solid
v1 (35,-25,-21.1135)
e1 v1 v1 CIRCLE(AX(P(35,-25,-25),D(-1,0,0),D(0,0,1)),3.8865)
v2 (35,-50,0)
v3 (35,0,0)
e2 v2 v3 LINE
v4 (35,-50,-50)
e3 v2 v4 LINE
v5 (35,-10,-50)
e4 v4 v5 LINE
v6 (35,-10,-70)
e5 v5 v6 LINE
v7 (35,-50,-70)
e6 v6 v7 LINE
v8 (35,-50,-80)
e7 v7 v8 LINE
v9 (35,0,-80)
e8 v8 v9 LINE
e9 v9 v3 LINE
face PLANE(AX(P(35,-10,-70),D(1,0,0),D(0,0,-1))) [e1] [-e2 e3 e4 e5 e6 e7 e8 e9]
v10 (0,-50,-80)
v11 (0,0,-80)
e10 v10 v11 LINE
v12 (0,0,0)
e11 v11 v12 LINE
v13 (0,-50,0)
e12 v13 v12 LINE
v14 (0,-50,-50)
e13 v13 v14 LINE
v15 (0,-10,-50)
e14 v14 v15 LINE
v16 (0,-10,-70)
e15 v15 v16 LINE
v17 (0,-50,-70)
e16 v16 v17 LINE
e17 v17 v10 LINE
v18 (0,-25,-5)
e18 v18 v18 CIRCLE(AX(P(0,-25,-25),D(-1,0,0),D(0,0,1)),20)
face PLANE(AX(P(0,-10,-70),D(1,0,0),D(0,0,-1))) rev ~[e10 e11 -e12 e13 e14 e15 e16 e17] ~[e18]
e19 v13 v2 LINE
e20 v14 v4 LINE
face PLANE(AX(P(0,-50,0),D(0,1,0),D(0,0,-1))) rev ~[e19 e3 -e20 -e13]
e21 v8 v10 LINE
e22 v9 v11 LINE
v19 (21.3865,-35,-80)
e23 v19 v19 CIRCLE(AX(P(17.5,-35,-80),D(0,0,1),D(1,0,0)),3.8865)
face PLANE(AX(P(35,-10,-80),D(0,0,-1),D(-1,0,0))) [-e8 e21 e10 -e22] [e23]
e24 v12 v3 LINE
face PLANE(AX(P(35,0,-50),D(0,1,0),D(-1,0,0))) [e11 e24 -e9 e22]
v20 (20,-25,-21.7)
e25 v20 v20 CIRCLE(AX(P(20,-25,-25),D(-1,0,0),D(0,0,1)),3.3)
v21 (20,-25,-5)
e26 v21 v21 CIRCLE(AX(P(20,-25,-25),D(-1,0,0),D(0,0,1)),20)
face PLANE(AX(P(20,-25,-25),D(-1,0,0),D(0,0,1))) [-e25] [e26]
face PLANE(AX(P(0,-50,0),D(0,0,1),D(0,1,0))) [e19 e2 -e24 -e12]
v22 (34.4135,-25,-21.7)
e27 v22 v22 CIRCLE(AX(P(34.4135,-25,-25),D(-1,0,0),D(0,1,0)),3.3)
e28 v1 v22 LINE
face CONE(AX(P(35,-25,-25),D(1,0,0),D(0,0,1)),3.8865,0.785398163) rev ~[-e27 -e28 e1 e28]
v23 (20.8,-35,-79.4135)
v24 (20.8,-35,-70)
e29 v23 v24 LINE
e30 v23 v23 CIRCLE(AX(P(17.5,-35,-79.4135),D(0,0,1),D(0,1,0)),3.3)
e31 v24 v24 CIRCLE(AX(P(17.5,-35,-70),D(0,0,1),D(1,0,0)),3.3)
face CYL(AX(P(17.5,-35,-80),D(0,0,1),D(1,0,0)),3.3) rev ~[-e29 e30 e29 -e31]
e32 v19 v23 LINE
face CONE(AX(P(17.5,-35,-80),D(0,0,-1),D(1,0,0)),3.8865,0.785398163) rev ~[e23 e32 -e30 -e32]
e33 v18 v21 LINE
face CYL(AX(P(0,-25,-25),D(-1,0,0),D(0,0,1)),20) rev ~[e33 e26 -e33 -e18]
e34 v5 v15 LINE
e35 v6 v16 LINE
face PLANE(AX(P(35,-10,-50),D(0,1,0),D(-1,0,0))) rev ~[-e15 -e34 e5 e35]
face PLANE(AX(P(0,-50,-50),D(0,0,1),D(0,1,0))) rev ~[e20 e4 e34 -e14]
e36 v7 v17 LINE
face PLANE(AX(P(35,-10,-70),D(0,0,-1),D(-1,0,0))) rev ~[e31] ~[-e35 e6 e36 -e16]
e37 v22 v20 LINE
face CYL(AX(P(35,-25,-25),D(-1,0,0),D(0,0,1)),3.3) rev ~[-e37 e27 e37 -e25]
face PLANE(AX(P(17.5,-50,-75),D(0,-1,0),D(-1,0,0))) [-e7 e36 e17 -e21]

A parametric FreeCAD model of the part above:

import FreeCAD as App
import Part
import Sketcher
Q = App.Units.Quantity


def add_polygon(sketch, points):
    """Adds a closed chain of lines whose ends are joined by coincident constraints."""
    first, n = sketch.GeometryCount, len(points)
    for a, b in zip(points, points[1:] + points[:1]):
        sketch.addGeometry(Part.LineSegment(App.Vector(*a, 0), App.Vector(*b, 0)), False)
    for i in range(n):
        sketch.addConstraint(Sketcher.Constraint("Coincident", first + i, 2, first + (i + 1) % n, 1))

doc = App.newDocument("Part")
body = doc.addObject("PartDesign::Body", "Body")

sketch1 = body.newObject("Sketcher::SketchObject", "Sketch")
sketch1.AttachmentSupport = (doc.getObject("YZ_Plane"), [""])
sketch1.MapMode = "FlatFace"
add_polygon(sketch1, [(0, 0), (-50, 0), (-50, -50), (0, -50)])
sketch1.addConstraint(Sketcher.Constraint("Horizontal", 0))
sketch1.addConstraint(Sketcher.Constraint("Vertical", 1))
sketch1.addConstraint(Sketcher.Constraint("Horizontal", 2))
sketch1.addConstraint(Sketcher.Constraint("Vertical", 3))
sketch1.addConstraint(Sketcher.Constraint("Coincident", 3, 2, -1, 1))
sketch1.addConstraint(Sketcher.Constraint("Equal", 2, 1))
sketch1.addConstraint(Sketcher.Constraint("DistanceX", 0, 2, 0, 1, Q("50 mm")))
pad1 = body.newObject("PartDesign::Pad", "Pad")
pad1.Profile = sketch1
pad1.Length = 35

sketch2 = body.newObject("Sketcher::SketchObject", "Sketch001")
sketch2.AttachmentSupport = (doc.getObject("YZ_Plane"), [""])
sketch2.MapMode = "FlatFace"
sketch2.addGeometry(Part.Circle(App.Vector(-25, -25, 0), App.Vector(0, 0, 1), 20), False)
sketch2.addConstraint(Sketcher.Constraint("Diameter", 0, Q("40 mm")))
sketch2.addConstraint(Sketcher.Constraint("DistanceX", 0, 3, -1, 1, Q("25 mm")))
sketch2.addConstraint(Sketcher.Constraint("DistanceY", 0, 3, -1, 1, Q("25 mm")))
pocket1 = body.newObject("PartDesign::Pocket", "Pocket")
pocket1.Profile = sketch2
pocket1.Length = 20
pocket1.Reversed = True

sketch3 = body.newObject("Sketcher::SketchObject", "Sketch002")
sketch3.AttachmentSupport = (doc.getObject("YZ_Plane"), [""])
sketch3.MapMode = "FlatFace"
sketch3.AttachmentOffset = App.Placement(App.Vector(0, 0, 35), App.Rotation())
sketch3.addGeometry(Part.Circle(App.Vector(-25, -25, 0), App.Vector(0, 0, 1), 3.3), False)
sketch3.addConstraint(Sketcher.Constraint("Diameter", 0, Q("6.6 mm")))
sketch3.addConstraint(Sketcher.Constraint("DistanceX", 0, 3, -1, 1, Q("25 mm")))
sketch3.addConstraint(Sketcher.Constraint("DistanceY", 0, 3, -1, 1, Q("25 mm")))
doc.recompute()
hole = body.newObject("PartDesign::Hole", "Hole")
hole.Profile = sketch3
hole.ThreadType = "None"
hole.Diameter = 6.6
hole.DepthType = "Dimension"
hole.Depth = 20
hole.DrillPoint = "Angled"
hole.DrillPointAngle = 118
hole.HoleCutType = "Countersink"
hole.HoleCutDiameter = 7.773
hole.HoleCutCountersinkAngle = 90

sketch4 = body.newObject("Sketcher::SketchObject", "Sketch003")
sketch4.AttachmentSupport = (doc.getObject("XY_Plane"), [""])
sketch4.MapMode = "FlatFace"
sketch4.AttachmentOffset = App.Placement(App.Vector(0, 0, -50), App.Rotation())
add_polygon(sketch4, [(35, 0), (35, -10), (0, -10), (0, 0)])
sketch4.addConstraint(Sketcher.Constraint("Vertical", 0))
sketch4.addConstraint(Sketcher.Constraint("Horizontal", 1))
sketch4.addConstraint(Sketcher.Constraint("Vertical", 2))
sketch4.addConstraint(Sketcher.Constraint("Horizontal", 3))
sketch4.addConstraint(Sketcher.Constraint("Coincident", 2, 2, -1, 1))
sketch4.addConstraint(Sketcher.Constraint("DistanceX", 1, 2, 1, 1, Q("35 mm")))
sketch4.addConstraint(Sketcher.Constraint("DistanceY", 0, 2, 0, 1, Q("10 mm")))
pad2 = body.newObject("PartDesign::Pad", "Pad001")
pad2.Profile = sketch4
pad2.Length = 30
pad2.Reversed = True

sketch5 = body.newObject("Sketcher::SketchObject", "Sketch004")
sketch5.AttachmentSupport = (doc.getObject("XZ_Plane"), [""])
sketch5.MapMode = "FlatFace"
sketch5.AttachmentOffset = App.Placement(App.Vector(0, 0, 10), App.Rotation())
add_polygon(sketch5, [(35, -80), (35, -70), (0, -70), (0, -80)])
sketch5.addConstraint(Sketcher.Constraint("Vertical", 0))
sketch5.addConstraint(Sketcher.Constraint("Horizontal", 1))
sketch5.addConstraint(Sketcher.Constraint("Vertical", 2))
sketch5.addConstraint(Sketcher.Constraint("Horizontal", 3))
sketch5.addConstraint(Sketcher.Constraint("PointOnObject", 1, 2, -2))
sketch5.addConstraint(Sketcher.Constraint("DistanceX", 1, 2, 1, 1, Q("35 mm")))
sketch5.addConstraint(Sketcher.Constraint("DistanceY", 0, 1, 0, 2, Q("10 mm")))
sketch5.addConstraint(Sketcher.Constraint("DistanceY", 0, 2, -1, 1, Q("70 mm")))
pad3 = body.newObject("PartDesign::Pad", "Pad002")
pad3.Profile = sketch5
pad3.Length = 40

sketch6 = body.newObject("Sketcher::SketchObject", "Sketch005")
sketch6.AttachmentSupport = (doc.getObject("XY_Plane"), [""])
sketch6.MapMode = "FlatFace"
sketch6.AttachmentOffset = App.Placement(App.Vector(0, 0, -80), App.Rotation())
sketch6.addGeometry(Part.Circle(App.Vector(17.5, -35, 0), App.Vector(0, 0, 1), 3.3), False)
sketch6.addConstraint(Sketcher.Constraint("Diameter", 0, Q("6.6 mm")))
sketch6.addConstraint(Sketcher.Constraint("DistanceY", 0, 3, -1, 1, Q("35 mm")))
sketch6.addConstraint(Sketcher.Constraint("DistanceX", -1, 1, 0, 3, Q("17.5 mm")))
doc.recompute()
hole2 = body.newObject("PartDesign::Hole", "Hole001")
hole2.Profile = sketch6
hole2.ThreadType = "None"
hole2.Diameter = 6.6
hole2.DepthType = "Dimension"
hole2.Depth = 20
hole2.DrillPoint = "Angled"
hole2.DrillPointAngle = 118
hole2.HoleCutType = "Countersink"
hole2.HoleCutDiameter = 7.773
hole2.HoleCutCountersinkAngle = 90
hole2.Reversed = True

doc.recompute()
